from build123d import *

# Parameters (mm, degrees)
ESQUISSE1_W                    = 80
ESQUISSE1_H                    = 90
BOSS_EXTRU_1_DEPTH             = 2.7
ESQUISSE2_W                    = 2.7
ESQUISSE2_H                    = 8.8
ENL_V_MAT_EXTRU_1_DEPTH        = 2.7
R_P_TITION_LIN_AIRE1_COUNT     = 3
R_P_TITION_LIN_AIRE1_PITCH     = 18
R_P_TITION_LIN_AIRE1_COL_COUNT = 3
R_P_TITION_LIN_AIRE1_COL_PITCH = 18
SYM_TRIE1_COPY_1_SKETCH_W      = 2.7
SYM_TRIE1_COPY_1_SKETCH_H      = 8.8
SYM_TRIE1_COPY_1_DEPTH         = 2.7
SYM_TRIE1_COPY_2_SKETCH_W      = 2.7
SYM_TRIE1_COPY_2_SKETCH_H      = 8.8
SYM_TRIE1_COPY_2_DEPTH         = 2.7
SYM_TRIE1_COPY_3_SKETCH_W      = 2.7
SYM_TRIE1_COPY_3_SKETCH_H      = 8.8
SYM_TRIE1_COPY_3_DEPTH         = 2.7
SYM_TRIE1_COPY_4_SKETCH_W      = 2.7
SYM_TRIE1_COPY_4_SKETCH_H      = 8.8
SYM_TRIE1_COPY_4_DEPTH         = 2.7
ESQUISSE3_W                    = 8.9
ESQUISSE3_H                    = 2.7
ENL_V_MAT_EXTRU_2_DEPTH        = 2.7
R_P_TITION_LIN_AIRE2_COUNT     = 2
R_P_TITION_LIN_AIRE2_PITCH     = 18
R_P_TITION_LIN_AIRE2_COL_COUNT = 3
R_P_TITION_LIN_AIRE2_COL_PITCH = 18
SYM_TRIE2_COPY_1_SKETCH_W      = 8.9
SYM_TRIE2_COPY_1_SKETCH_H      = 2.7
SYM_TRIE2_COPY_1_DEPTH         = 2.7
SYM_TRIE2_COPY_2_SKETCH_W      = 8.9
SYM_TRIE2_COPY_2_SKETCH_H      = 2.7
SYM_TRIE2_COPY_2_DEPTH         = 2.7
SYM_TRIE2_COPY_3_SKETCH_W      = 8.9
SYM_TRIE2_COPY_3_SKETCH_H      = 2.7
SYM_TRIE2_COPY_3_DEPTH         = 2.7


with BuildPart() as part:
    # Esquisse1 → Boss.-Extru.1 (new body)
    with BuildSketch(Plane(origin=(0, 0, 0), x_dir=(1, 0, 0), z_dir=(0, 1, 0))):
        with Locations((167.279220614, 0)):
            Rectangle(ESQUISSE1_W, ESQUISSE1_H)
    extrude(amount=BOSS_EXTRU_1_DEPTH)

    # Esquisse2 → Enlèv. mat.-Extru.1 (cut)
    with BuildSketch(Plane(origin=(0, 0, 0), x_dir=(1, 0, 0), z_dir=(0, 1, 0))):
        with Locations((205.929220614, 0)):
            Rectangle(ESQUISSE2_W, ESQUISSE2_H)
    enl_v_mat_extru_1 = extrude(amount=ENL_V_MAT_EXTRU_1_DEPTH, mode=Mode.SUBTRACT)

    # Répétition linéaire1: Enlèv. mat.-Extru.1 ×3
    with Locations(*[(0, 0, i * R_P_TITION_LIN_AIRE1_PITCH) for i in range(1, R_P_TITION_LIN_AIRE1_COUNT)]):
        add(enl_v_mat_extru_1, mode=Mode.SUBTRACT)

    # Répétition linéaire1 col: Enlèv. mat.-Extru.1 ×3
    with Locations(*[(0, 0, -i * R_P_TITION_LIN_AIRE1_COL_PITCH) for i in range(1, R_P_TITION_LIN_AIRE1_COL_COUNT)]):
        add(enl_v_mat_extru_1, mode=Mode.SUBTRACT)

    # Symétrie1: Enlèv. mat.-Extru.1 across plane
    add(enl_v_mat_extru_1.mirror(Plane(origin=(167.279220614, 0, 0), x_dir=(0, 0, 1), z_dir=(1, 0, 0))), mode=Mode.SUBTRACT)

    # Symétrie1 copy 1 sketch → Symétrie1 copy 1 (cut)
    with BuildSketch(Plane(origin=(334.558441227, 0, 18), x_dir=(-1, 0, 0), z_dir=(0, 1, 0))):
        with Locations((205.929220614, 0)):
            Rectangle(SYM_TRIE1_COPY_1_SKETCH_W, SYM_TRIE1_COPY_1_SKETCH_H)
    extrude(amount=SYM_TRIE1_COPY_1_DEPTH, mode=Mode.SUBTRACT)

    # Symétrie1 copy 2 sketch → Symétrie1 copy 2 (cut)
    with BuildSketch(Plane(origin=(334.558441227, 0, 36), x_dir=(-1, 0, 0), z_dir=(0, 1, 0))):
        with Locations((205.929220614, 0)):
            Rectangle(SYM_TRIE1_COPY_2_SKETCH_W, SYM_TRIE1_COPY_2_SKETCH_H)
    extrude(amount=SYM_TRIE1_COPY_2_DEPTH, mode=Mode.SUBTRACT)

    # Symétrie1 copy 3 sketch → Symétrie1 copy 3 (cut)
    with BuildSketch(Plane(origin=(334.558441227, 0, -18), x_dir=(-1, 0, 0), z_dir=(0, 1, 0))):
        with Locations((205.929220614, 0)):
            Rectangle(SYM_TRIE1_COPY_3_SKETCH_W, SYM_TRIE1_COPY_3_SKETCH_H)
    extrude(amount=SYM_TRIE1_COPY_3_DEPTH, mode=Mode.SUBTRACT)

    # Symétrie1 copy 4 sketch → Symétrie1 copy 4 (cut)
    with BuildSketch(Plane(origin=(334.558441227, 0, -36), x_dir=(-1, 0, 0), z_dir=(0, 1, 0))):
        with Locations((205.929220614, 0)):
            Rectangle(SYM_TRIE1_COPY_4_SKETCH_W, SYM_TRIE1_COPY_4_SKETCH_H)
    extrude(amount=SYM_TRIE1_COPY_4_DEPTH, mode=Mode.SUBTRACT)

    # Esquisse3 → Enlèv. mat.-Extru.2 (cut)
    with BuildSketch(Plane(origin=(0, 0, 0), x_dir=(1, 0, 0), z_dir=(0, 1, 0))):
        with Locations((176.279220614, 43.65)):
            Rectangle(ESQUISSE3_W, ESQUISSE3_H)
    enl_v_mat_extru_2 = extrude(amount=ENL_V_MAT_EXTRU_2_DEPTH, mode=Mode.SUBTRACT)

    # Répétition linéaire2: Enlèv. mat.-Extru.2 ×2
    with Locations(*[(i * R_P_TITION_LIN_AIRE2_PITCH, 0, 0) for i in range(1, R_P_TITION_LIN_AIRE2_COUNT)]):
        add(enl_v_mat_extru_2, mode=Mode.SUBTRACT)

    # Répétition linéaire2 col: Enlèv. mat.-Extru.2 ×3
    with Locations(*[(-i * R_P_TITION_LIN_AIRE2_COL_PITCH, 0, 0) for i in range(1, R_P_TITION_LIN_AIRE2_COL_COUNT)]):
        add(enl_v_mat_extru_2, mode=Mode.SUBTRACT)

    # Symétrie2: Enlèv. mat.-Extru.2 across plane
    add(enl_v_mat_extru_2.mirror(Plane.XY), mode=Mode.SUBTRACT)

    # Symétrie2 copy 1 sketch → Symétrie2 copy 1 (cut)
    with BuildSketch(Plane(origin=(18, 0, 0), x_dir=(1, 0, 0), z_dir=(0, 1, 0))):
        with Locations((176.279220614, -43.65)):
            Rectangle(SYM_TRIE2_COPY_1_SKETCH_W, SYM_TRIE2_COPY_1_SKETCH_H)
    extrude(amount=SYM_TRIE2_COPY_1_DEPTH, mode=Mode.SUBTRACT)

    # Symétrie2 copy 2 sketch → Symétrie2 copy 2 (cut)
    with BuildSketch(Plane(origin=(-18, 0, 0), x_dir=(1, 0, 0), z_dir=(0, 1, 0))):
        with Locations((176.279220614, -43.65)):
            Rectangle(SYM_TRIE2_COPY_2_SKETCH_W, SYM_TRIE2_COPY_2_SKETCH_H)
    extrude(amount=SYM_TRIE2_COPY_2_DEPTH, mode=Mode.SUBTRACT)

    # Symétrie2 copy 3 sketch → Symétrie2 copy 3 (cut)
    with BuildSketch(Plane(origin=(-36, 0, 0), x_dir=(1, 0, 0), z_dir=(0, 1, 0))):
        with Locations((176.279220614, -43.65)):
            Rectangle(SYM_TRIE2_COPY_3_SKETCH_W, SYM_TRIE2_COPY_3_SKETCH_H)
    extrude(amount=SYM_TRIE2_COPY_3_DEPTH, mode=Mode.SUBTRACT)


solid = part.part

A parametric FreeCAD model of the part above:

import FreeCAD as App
import Part
import Sketcher
from FreeCAD import Vector


def add_polygon(sketch, points):
    """Adds a closed chain of lines whose ends are joined by coincident constraints."""
    first, n = sketch.GeometryCount, len(points)
    for a, b in zip(points, points[1:] + points[:1]):
        sketch.addGeometry(Part.LineSegment(App.Vector(*a, 0), App.Vector(*b, 0)), False)
    for i in range(n):
        sketch.addConstraint(Sketcher.Constraint("Coincident", first + i, 2, first + (i + 1) % n, 1))

doc = App.newDocument("Part")
body = doc.addObject("PartDesign::Body", "Body")

# Sketch on XZ plane
sketch1 = body.newObject("Sketcher::SketchObject", "Sketch")
sketch1.AttachmentSupport = (doc.getObject("XZ_Plane"), [""])
sketch1.MapMode = "FlatFace"
add_polygon(sketch1, [(127, -45), (127, 45), (207, 45), (207, -45)])  # lines 0-3
sketch1.addConstraint([
    Sketcher.Constraint("Vertical", 0),
    Sketcher.Constraint("Horizontal", 1),
    Sketcher.Constraint("Vertical", 2),
    Sketcher.Constraint("Horizontal", 3),
    Sketcher.Constraint("DistanceX", 1, 1, 1, 2, 80.0),
    Sketcher.Constraint("DistanceY", 0, 1, 0, 2, 90.0),
    Sketcher.Constraint("DistanceY", -1, 1, 0, 2, 45.0),
    Sketcher.Constraint("DistanceX", -1, 1, 0, 2, 127.279221),
])
pad1 = body.newObject("PartDesign::Pad", "Pad")
pad1.Profile = sketch1
pad1.Length = 2.7
pad1.Reversed = True

# Sketch on XZ plane
sketch2 = body.newObject("Sketcher::SketchObject", "Sketch001")
sketch2.AttachmentSupport = (doc.getObject("XZ_Plane"), [""])
sketch2.MapMode = "FlatFace"
add_polygon(sketch2, [(204.6, -4.4), (204.6, 4.4), (207.3, 4.4), (207.3, -4.4)])  # lines 0-3
sketch2.addConstraint([
    Sketcher.Constraint("Vertical", 0),
    Sketcher.Constraint("Horizontal", 1),
    Sketcher.Constraint("Vertical", 2),
    Sketcher.Constraint("Horizontal", 3),
    Sketcher.Constraint("DistanceX", 1, 1, 1, 2, 2.7),
    Sketcher.Constraint("DistanceY", 0, 1, 0, 2, 8.8),
    Sketcher.Constraint("DistanceY", -1, 1, 0, 2, 4.4),
    Sketcher.Constraint("DistanceX", -1, 1, 0, 2, 204.579221),
])
pocket1 = body.newObject("PartDesign::Pocket", "Pocket")
pocket1.Profile = sketch2
pocket1.Length = 2.7
doc.recompute()

linearpattern = body.newObject("PartDesign::LinearPattern", "LinearPattern")
linearpattern.Originals = [pocket1]
linearpattern.Direction = (doc.getObject("Z_Axis"), [""])
linearpattern.Mode = "offset"
linearpattern.Offset = 18
linearpattern.Occurrences = 3
body.Tip = linearpattern
doc.recompute()

linearpattern2 = body.newObject("PartDesign::LinearPattern", "LinearPattern001")
linearpattern2.Originals = [pocket1]
linearpattern2.Direction = (doc.getObject("Z_Axis"), [""])
linearpattern2.Mode = "offset"
linearpattern2.Offset = 18
linearpattern2.Occurrences = 3
linearpattern2.Reversed = True
body.Tip = linearpattern2
doc.recompute()

datumplane = body.newObject("PartDesign::Plane", "DatumPlane")
datumplane.AttachmentSupport = (doc.getObject("YZ_Plane"), [""])
datumplane.MapMode = "FlatFace"
datumplane.AttachmentOffset = App.Placement(Vector(0, 0, 167.279221), App.Rotation())
mirrored = body.newObject("PartDesign::Mirrored", "Mirrored")
mirrored.Originals = [pocket1]
mirrored.MirrorPlane = (datumplane, [""])
body.Tip = mirrored

# Sketch on XZ plane
sketch3 = body.newObject("Sketcher::SketchObject", "Sketch002")
sketch3.AttachmentSupport = (doc.getObject("XZ_Plane"), [""])
sketch3.MapMode = "FlatFace"
add_polygon(sketch3, [(130, 22.4), (130, 13.6), (127.3, 13.6), (127.3, 22.4)])  # lines 0-3
sketch3.addConstraint([
    Sketcher.Constraint("Vertical", 0),
    Sketcher.Constraint("Horizontal", 1),
    Sketcher.Constraint("Vertical", 2),
    Sketcher.Constraint("Horizontal", 3),
    Sketcher.Constraint("DistanceX", 1, 2, 1, 1, 2.7),
    Sketcher.Constraint("DistanceY", 0, 2, 0, 1, 8.8),
    Sketcher.Constraint("DistanceY", -1, 1, 0, 2, 13.6),
    Sketcher.Constraint("DistanceX", -1, 1, 0, 2, 129.979221),
])
pocket2 = body.newObject("PartDesign::Pocket", "Pocket001")
pocket2.Profile = sketch3
pocket2.Length = 2.7

# Sketch on XZ plane
sketch4 = body.newObject("Sketcher::SketchObject", "Sketch003")
sketch4.AttachmentSupport = (doc.getObject("XZ_Plane"), [""])
sketch4.MapMode = "FlatFace"
add_polygon(sketch4, [(130, 40.4), (130, 31.6), (127.3, 31.6), (127.3, 40.4)])  # lines 0-3
sketch4.addConstraint([
    Sketcher.Constraint("Vertical", 0),
    Sketcher.Constraint("Horizontal", 1),
    Sketcher.Constraint("Vertical", 2),
    Sketcher.Constraint("Horizontal", 3),
    Sketcher.Constraint("DistanceX", 1, 2, 1, 1, 2.7),
    Sketcher.Constraint("DistanceY", 0, 2, 0, 1, 8.8),
    Sketcher.Constraint("DistanceY", -1, 1, 0, 2, 31.6),
    Sketcher.Constraint("DistanceX", -1, 1, 0, 2, 129.979221),
])
pocket3 = body.newObject("PartDesign::Pocket", "Pocket002")
pocket3.Profile = sketch4
pocket3.Length = 2.7

# Sketch on XZ plane
sketch5 = body.newObject("Sketcher::SketchObject", "Sketch004")
sketch5.AttachmentSupport = (doc.getObject("XZ_Plane"), [""])
sketch5.MapMode = "FlatFace"
add_polygon(sketch5, [(130, -13.6), (130, -22.4), (127.3, -22.4), (127.3, -13.6)])  # lines 0-3
sketch5.addConstraint([
    Sketcher.Constraint("Vertical", 0),
    Sketcher.Constraint("Horizontal", 1),
    Sketcher.Constraint("Vertical", 2),
    Sketcher.Constraint("Horizontal", 3),
    Sketcher.Constraint("DistanceX", 1, 2, 1, 1, 2.7),
    Sketcher.Constraint("DistanceY", 0, 2, 0, 1, 8.8),
    Sketcher.Constraint("DistanceY", 0, 2, -1, 1, 22.4),
    Sketcher.Constraint("DistanceX", -1, 1, 0, 2, 129.979221),
])
pocket4 = body.newObject("PartDesign::Pocket", "Pocket003")
pocket4.Profile = sketch5
pocket4.Length = 2.7

# Sketch on XZ plane
sketch6 = body.newObject("Sketcher::SketchObject", "Sketch005")
sketch6.AttachmentSupport = (doc.getObject("XZ_Plane"), [""])
sketch6.MapMode = "FlatFace"
add_polygon(sketch6, [(130, -31.6), (130, -40.4), (127.3, -40.4), (127.3, -31.6)])  # lines 0-3
sketch6.addConstraint([
    Sketcher.Constraint("Vertical", 0),
    Sketcher.Constraint("Horizontal", 1),
    Sketcher.Constraint("Vertical", 2),
    Sketcher.Constraint("Horizontal", 3),
    Sketcher.Constraint("DistanceX", 1, 2, 1, 1, 2.7),
    Sketcher.Constraint("DistanceY", 0, 2, 0, 1, 8.8),
    Sketcher.Constraint("DistanceY", 0, 2, -1, 1, 40.4),
    Sketcher.Constraint("DistanceX", -1, 1, 0, 2, 129.979221),
])
pocket5 = body.newObject("PartDesign::Pocket", "Pocket004")
pocket5.Profile = sketch6
pocket5.Length = 2.7

# Sketch on XZ plane
sketch7 = body.newObject("Sketcher::SketchObject", "Sketch006")
sketch7.AttachmentSupport = (doc.getObject("XZ_Plane"), [""])
sketch7.MapMode = "FlatFace"
add_polygon(sketch7, [(171.8, -45), (171.8, -42.3), (180.7, -42.3), (180.7, -45)])  # lines 0-3
sketch7.addConstraint([
    Sketcher.Constraint("Vertical", 0),
    Sketcher.Constraint("Horizontal", 1),
    Sketcher.Constraint("Vertical", 2),
    Sketcher.Constraint("Horizontal", 3),
    Sketcher.Constraint("DistanceX", 1, 1, 1, 2, 8.9),
    Sketcher.Constraint("DistanceY", 0, 1, 0, 2, 2.7),
    Sketcher.Constraint("DistanceY", 2, 2, -1, 1, 45.0),
    Sketcher.Constraint("DistanceX", -1, 1, 0, 2, 171.829221),
])
pocket6 = body.newObject("PartDesign::Pocket", "Pocket005")
pocket6.Profile = sketch7
pocket6.Length = 2.7
doc.recompute()

linearpattern3 = body.newObject("PartDesign::LinearPattern", "LinearPattern002")
linearpattern3.Originals = [pocket6]
linearpattern3.Direction = (doc.getObject("X_Axis"), [""])
linearpattern3.Mode = "offset"
linearpattern3.Offset = 18
linearpattern3.Occurrences = 2
body.Tip = linearpattern3
doc.recompute()

linearpattern4 = body.newObject("PartDesign::LinearPattern", "LinearPattern003")
linearpattern4.Originals = [pocket6]
linearpattern4.Direction = (doc.getObject("X_Axis"), [""])
linearpattern4.Mode = "offset"
linearpattern4.Offset = 18
linearpattern4.Occurrences = 3
linearpattern4.Reversed = True
body.Tip = linearpattern4
doc.recompute()

mirrored2 = body.newObject("PartDesign::Mirrored", "Mirrored001")
mirrored2.Originals = [pocket6]
mirrored2.MirrorPlane = (doc.getObject("XY_Plane"), [""])
body.Tip = mirrored2

# Sketch on XZ plane
sketch8 = body.newObject("Sketcher::SketchObject", "Sketch007")
sketch8.AttachmentSupport = (doc.getObject("XZ_Plane"), [""])
sketch8.MapMode = "FlatFace"
add_polygon(sketch8, [(189.8, 42.3), (189.8, 45), (198.7, 45), (198.7, 42.3)])  # lines 0-3
sketch8.addConstraint([
    Sketcher.Constraint("Vertical", 0),
    Sketcher.Constraint("Horizontal", 1),
    Sketcher.Constraint("Vertical", 2),
    Sketcher.Constraint("Horizontal", 3),
    Sketcher.Constraint("DistanceX", 1, 1, 1, 2, 8.9),
    Sketcher.Constraint("DistanceY", 0, 1, 0, 2, 2.7),
    Sketcher.Constraint("DistanceY", -1, 1, 0, 2, 45.0),
    Sketcher.Constraint("DistanceX", -1, 1, 0, 2, 189.829221),
])
pocket7 = body.newObject("PartDesign::Pocket", "Pocket006")
pocket7.Profile = sketch8
pocket7.Length = 2.7

# Sketch on XZ plane
sketch9 = body.newObject("Sketcher::SketchObject", "Sketch008")
sketch9.AttachmentSupport = (doc.getObject("XZ_Plane"), [""])
sketch9.MapMode = "FlatFace"
add_polygon(sketch9, [(153.8, 42.3), (153.8, 45), (162.7, 45), (162.7, 42.3)])  # lines 0-3
sketch9.addConstraint([
    Sketcher.Constraint("Vertical", 0),
    Sketcher.Constraint("Horizontal", 1),
    Sketcher.Constraint("Vertical", 2),
    Sketcher.Constraint("Horizontal", 3),
    Sketcher.Constraint("DistanceX", 1, 1, 1, 2, 8.9),
    Sketcher.Constraint("DistanceY", 0, 1, 0, 2, 2.7),
    Sketcher.Constraint("DistanceY", -1, 1, 0, 2, 45.0),
    Sketcher.Constraint("DistanceX", -1, 1, 0, 2, 153.829221),
])
pocket8 = body.newObject("PartDesign::Pocket", "Pocket007")
pocket8.Profile = sketch9
pocket8.Length = 2.7

# Sketch on XZ plane
sketch10 = body.newObject("Sketcher::SketchObject", "Sketch009")
sketch10.AttachmentSupport = (doc.getObject("XZ_Plane"), [""])
sketch10.MapMode = "FlatFace"
add_polygon(sketch10, [(135.8, 42.3), (135.8, 45), (144.7, 45), (144.7, 42.3)])  # lines 0-3
sketch10.addConstraint([
    Sketcher.Constraint("Vertical", 0),
    Sketcher.Constraint("Horizontal", 1),
    Sketcher.Constraint("Vertical", 2),
    Sketcher.Constraint("Horizontal", 3),
    Sketcher.Constraint("DistanceX", 1, 1, 1, 2, 8.9),
    Sketcher.Constraint("DistanceY", 0, 1, 0, 2, 2.7),
    Sketcher.Constraint("DistanceY", -1, 1, 0, 2, 45.0),
    Sketcher.Constraint("DistanceX", -1, 1, 0, 2, 135.829221),
])
pocket9 = body.newObject("PartDesign::Pocket", "Pocket008")
pocket9.Profile = sketch10
pocket9.Length = 2.7

doc.recompute()
